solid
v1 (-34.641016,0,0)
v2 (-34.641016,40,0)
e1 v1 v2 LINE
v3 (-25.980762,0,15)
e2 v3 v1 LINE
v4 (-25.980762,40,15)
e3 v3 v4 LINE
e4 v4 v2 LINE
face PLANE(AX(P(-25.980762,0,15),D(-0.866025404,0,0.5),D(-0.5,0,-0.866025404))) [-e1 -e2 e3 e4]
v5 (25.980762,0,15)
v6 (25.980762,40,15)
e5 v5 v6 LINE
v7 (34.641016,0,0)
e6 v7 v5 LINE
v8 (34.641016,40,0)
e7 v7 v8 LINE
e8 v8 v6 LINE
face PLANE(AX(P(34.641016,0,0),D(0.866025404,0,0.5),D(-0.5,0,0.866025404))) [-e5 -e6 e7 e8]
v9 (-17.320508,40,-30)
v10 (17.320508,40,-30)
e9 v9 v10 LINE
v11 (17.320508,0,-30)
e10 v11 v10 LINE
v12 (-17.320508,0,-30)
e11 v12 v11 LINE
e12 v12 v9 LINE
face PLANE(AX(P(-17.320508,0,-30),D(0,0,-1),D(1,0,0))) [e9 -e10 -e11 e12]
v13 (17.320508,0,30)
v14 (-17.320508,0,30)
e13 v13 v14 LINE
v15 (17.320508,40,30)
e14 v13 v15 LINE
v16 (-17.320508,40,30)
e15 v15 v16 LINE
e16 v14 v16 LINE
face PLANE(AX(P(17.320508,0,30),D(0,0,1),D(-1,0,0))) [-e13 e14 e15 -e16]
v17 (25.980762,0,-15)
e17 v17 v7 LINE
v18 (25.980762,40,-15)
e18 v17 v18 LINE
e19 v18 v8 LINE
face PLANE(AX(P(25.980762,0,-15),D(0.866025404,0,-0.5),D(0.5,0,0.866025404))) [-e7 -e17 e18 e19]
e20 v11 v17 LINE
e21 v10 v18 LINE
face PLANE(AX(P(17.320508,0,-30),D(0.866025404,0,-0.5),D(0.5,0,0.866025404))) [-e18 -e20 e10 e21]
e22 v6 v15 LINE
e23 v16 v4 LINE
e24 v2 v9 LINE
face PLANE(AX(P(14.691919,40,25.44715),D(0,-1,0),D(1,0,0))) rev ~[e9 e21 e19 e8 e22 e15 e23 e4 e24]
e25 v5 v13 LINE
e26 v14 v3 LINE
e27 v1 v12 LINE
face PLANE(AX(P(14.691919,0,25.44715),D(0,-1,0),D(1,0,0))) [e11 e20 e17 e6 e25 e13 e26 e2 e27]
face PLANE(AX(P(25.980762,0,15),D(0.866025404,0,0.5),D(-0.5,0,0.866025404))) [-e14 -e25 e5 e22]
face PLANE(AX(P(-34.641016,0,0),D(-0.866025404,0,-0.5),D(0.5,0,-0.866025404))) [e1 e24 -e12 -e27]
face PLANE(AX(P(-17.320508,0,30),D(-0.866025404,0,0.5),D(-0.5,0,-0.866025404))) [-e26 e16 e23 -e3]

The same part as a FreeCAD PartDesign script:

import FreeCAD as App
import Part
import Sketcher
Q = App.Units.Quantity

doc = App.newDocument("Part")
params = doc.addObject("Spreadsheet::Sheet", "Params")
for row, (alias, value) in enumerate([
    ("pad1_length", "40 mm"),
], start=1):
    params.set(f"A{row}", alias)
    params.set(f"B{row}", "=" + value)
    params.setAlias(f"B{row}", alias)

body = doc.addObject("PartDesign::Body", "Body")

# Sketch on XZ plane
sketch1 = doc.addObject("Sketcher::SketchObject", "Sketch")
body.addObject(sketch1)
sketch1.AttachmentSupport = (doc.XZ_Plane, [""])
sketch1.MapMode = "FlatFace"
sketch1.addGeometry(Part.LineSegment(App.Vector(26, 15, 0), App.Vector(17, 30, 0)), False)
sketch1.addGeometry(Part.LineSegment(App.Vector(17, 30, 0), App.Vector(-17, 30, 0)), False)
sketch1.addGeometry(Part.LineSegment(App.Vector(-17, 30, 0), App.Vector(-26, 15, 0)), False)
sketch1.addGeometry(Part.LineSegment(App.Vector(-26, 15, 0), App.Vector(-35, 0, 0)), False)
sketch1.addGeometry(Part.LineSegment(App.Vector(-35, 0, 0), App.Vector(-17, -30, 0)), False)
sketch1.addGeometry(Part.LineSegment(App.Vector(-17, -30, 0), App.Vector(17, -30, 0)), False)
sketch1.addGeometry(Part.LineSegment(App.Vector(17, -30, 0), App.Vector(26, -15, 0)), False)
sketch1.addGeometry(Part.LineSegment(App.Vector(26, -15, 0), App.Vector(35, 0, 0)), False)
sketch1.addGeometry(Part.LineSegment(App.Vector(35, 0, 0), App.Vector(26, 15, 0)), False)
sketch1.addConstraint(Sketcher.Constraint("Coincident", 0, 2, 1, 1))
sketch1.addConstraint(Sketcher.Constraint("Coincident", 1, 2, 2, 1))
sketch1.addConstraint(Sketcher.Constraint("Coincident", 2, 2, 3, 1))
sketch1.addConstraint(Sketcher.Constraint("Coincident", 3, 2, 4, 1))
sketch1.addConstraint(Sketcher.Constraint("Coincident", 4, 2, 5, 1))
sketch1.addConstraint(Sketcher.Constraint("Coincident", 5, 2, 6, 1))
sketch1.addConstraint(Sketcher.Constraint("Coincident", 6, 2, 7, 1))
sketch1.addConstraint(Sketcher.Constraint("Coincident", 7, 2, 8, 1))
sketch1.addConstraint(Sketcher.Constraint("Coincident", 8, 2, 0, 1))
sketch1.addConstraint(Sketcher.Constraint("Horizontal", 1))
sketch1.addConstraint(Sketcher.Constraint("Horizontal", 5))
sketch1.addConstraint(Sketcher.Constraint("Symmetric", 0, 2, 4, 2, -1, 1))
sketch1.addConstraint(Sketcher.Constraint("Symmetric", 2, 2, 6, 2, -1, 1))
sketch1.addConstraint(Sketcher.Constraint("Symmetric", 3, 2, 7, 2, -1, 1))
sketch1.addConstraint(Sketcher.Constraint("Symmetric", 2, 2, 8, 2, -2))
sketch1.addConstraint(Sketcher.Constraint("PointOnObject", 3, 2, -1))
sketch1.addConstraint(Sketcher.Constraint("Parallel", 2, 3))
sketch1.addConstraint(Sketcher.Constraint("Parallel", 0, 4))
sketch1.addConstraint(Sketcher.Constraint("Parallel", 3, 6))
sketch1.addConstraint(Sketcher.Constraint("Equal", 2, 3))
sketch1.addConstraint(Sketcher.Constraint("Angle", 0, Q("120 deg")))
sketch1.addConstraint(Sketcher.Constraint("DistanceY", -1, 1, 0, 2, Q("30 mm")))
sketch1.addConstraint(Sketcher.Constraint("DistanceX", 1, 2, 1, 1, Q("34.641016 mm")))
pad1 = doc.addObject("PartDesign::Pad", "Pad")
body.addObject(pad1)
pad1.Profile = sketch1
pad1.setExpression("Length", "Params.pad1_length")
pad1.Reversed = True

doc.recompute()
